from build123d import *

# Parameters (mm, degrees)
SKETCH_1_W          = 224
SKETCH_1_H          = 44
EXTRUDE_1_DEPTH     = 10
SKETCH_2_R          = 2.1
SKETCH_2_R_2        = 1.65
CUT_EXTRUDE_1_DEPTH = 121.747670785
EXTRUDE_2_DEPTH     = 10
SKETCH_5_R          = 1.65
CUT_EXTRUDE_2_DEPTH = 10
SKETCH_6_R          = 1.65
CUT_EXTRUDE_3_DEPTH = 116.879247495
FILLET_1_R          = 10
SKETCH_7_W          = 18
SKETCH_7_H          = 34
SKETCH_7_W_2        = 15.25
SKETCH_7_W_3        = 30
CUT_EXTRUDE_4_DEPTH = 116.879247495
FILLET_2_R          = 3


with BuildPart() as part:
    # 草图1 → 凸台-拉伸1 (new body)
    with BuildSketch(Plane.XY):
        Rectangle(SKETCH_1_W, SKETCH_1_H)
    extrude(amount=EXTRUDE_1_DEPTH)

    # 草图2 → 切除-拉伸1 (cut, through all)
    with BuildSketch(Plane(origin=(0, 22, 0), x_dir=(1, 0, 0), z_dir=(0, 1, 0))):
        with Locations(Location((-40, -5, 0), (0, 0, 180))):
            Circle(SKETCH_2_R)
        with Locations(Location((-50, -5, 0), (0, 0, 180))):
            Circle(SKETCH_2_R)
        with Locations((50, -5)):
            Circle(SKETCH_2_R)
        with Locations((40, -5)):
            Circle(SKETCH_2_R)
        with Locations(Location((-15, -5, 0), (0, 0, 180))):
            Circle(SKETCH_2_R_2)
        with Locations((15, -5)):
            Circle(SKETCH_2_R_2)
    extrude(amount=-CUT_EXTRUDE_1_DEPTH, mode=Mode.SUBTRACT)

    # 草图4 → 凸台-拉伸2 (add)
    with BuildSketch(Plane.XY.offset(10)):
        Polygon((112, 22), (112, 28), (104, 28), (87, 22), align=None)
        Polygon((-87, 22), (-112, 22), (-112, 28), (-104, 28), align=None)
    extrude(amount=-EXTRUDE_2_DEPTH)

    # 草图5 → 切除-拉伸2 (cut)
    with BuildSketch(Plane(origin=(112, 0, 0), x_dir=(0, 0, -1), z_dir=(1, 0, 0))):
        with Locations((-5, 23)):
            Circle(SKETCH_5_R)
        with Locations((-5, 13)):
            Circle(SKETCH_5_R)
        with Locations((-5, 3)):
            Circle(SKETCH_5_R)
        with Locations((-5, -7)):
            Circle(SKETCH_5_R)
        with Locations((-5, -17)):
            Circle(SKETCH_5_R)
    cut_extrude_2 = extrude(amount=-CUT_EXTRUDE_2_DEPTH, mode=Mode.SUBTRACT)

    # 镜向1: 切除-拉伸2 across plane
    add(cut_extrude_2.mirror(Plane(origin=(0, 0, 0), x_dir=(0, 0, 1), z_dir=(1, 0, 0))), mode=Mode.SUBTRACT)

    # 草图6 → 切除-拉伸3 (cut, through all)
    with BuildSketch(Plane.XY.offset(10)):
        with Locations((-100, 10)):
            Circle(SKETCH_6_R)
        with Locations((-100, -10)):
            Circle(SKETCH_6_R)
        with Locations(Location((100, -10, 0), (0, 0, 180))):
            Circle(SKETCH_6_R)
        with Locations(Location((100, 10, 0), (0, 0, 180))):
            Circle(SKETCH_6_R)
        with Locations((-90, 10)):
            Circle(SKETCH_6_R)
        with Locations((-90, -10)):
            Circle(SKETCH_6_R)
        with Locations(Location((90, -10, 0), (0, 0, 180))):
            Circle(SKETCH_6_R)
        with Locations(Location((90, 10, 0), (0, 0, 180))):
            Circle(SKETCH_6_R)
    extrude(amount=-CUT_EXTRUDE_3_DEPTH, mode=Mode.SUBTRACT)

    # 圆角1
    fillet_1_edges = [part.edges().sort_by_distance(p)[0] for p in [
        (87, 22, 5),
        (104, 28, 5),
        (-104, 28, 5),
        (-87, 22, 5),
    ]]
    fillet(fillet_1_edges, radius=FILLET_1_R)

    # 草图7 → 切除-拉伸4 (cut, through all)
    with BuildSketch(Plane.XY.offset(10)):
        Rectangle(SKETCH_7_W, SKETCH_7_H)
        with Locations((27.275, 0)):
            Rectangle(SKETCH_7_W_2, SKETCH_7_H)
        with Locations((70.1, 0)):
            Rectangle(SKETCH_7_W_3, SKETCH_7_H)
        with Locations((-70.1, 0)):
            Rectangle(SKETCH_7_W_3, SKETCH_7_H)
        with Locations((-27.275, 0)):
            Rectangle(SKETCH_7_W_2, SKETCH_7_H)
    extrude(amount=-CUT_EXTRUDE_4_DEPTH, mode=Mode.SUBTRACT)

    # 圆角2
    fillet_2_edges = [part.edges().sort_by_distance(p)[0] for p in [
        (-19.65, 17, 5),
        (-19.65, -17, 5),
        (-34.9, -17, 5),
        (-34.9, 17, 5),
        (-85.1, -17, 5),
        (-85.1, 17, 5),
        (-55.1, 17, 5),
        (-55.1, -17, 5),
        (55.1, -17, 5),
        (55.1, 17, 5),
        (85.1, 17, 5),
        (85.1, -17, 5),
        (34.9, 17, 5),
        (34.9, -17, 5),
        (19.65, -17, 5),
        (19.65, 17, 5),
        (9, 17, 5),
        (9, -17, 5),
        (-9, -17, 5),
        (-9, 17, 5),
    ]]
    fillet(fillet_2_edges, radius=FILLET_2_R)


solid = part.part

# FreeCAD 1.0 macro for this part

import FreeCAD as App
import Part
import Sketcher

V = App.Vector
Q = App.Units.Quantity


def edges_at(feature, points):
    """Names of the edges that pass closest to the given points."""
    edges = feature.Shape.Edges
    near = lambda p: min(range(len(edges)), key=lambda i: edges[i].distToShape(Part.Vertex(*p))[0])
    return sorted({f"Edge{near(p) + 1}" for p in points})

doc = App.newDocument("Part")
body = doc.addObject("PartDesign::Body", "Body")

# Sketch on XY plane
sketch1 = doc.addObject("Sketcher::SketchObject", "Sketch")
body.addObject(sketch1)
sketch1.AttachmentSupport = (doc.XY_Plane, [""])
sketch1.MapMode = "FlatFace"
sketch1.addGeometry([
    Part.LineSegment(V(-112, 22, 0), V(-112, -22, 0)),
    Part.LineSegment(V(-112, -22, 0), V(112, -22, 0)),
    Part.LineSegment(V(112, -22, 0), V(112, 22, 0)),
    Part.LineSegment(V(112, 22, 0), V(-112, 22, 0)),
], False)
sketch1.addConstraint([
    Sketcher.Constraint("Coincident", 0, 2, 1, 1),
    Sketcher.Constraint("Coincident", 1, 2, 2, 1),
    Sketcher.Constraint("Coincident", 2, 2, 3, 1),
    Sketcher.Constraint("Coincident", 3, 2, 0, 1),
    Sketcher.Constraint("Vertical", 0),
    Sketcher.Constraint("Horizontal", 1),
    Sketcher.Constraint("Vertical", 2),
    Sketcher.Constraint("Horizontal", 3),
    Sketcher.Constraint("Symmetric", 0, 2, 2, 2, -1, 1),
    Sketcher.Constraint("DistanceX", 1, 1, 1, 2, Q("224 mm")),
    Sketcher.Constraint("DistanceY", 0, 2, 0, 1, Q("44 mm")),
])
pad1 = doc.addObject("PartDesign::Pad", "Pad")
body.addObject(pad1)
pad1.Profile = sketch1
pad1.Length = 10

# Sketch on XZ plane
sketch2 = doc.addObject("Sketcher::SketchObject", "Sketch001")
body.addObject(sketch2)
sketch2.AttachmentSupport = (doc.XZ_Plane, [""])
sketch2.MapMode = "FlatFace"
sketch2.AttachmentOffset = App.Placement(V(0, 0, -22), App.Rotation())
sketch2.addGeometry([
    Part.Circle(V(-40, 5, 0), V(0, 0, 1), 2.1),  # 0
    Part.Circle(V(-50, 5, 0), V(0, 0, 1), 2.1),  # 1
    Part.Circle(V(50, 5, 0), V(0, 0, 1), 2.1),  # 2
    Part.Circle(V(40, 5, 0), V(0, 0, 1), 2.1),  # 3
    Part.Circle(V(-15, 5, 0), V(0, 0, 1), 1.6),  # 4
    Part.Circle(V(15, 5, 0), V(0, 0, 1), 1.6),  # 5
], False)
sketch2.addConstraint([
    Sketcher.Constraint("Equal", 0, 1),
    Sketcher.Constraint("Equal", 1, 2),
    Sketcher.Constraint("Equal", 2, 3),
    Sketcher.Constraint("Equal", 4, 5),
    Sketcher.Constraint("Symmetric", 1, 3, 2, 3, -2),
    Sketcher.Constraint("Symmetric", 0, 3, 3, 3, -2),
    Sketcher.Constraint("Symmetric", 4, 3, 5, 3, -2),
    Sketcher.Constraint("Horizontal", 0, 3, 1, 3),
    Sketcher.Constraint("Horizontal", 3, 3, 4, 3),
    Sketcher.Constraint("Diameter", 0, Q("4.2 mm")),
    Sketcher.Constraint("Diameter", 4, Q("3.3 mm")),
    Sketcher.Constraint("DistanceX", 0, 3, -1, 1, Q("40 mm")),
    Sketcher.Constraint("DistanceY", -1, 1, 0, 3, Q("5 mm")),
    Sketcher.Constraint("DistanceX", 1, 3, -1, 1, Q("50 mm")),
    Sketcher.Constraint("DistanceX", 4, 3, -1, 1, Q("15 mm")),
])
pocket1 = doc.addObject("PartDesign::Pocket", "Pocket")
body.addObject(pocket1)
pocket1.Profile = sketch2
pocket1.Type = "ThroughAll"
pocket1.Reversed = True

# Sketch on XY plane
sketch3 = doc.addObject("Sketcher::SketchObject", "Sketch002")
body.addObject(sketch3)
sketch3.AttachmentSupport = (doc.XY_Plane, [""])
sketch3.MapMode = "FlatFace"
sketch3.AttachmentOffset = App.Placement(V(0, 0, 10), App.Rotation())
sketch3.addGeometry([
    Part.LineSegment(V(112, 22, 0), V(112, 28, 0)),  # 0
    Part.LineSegment(V(112, 28, 0), V(104, 28, 0)),  # 1
    Part.LineSegment(V(104, 28, 0), V(87, 22, 0)),  # 2
    Part.LineSegment(V(87, 22, 0), V(112, 22, 0)),  # 3
    Part.LineSegment(V(-112, 22, 0), V(-87, 22, 0)),  # 4
    Part.LineSegment(V(-87, 22, 0), V(-104, 28, 0)),  # 5
    Part.LineSegment(V(-104, 28, 0), V(-112, 28, 0)),  # 6
    Part.LineSegment(V(-112, 28, 0), V(-112, 22, 0)),  # 7
], False)
sketch3.addConstraint([
    Sketcher.Constraint("Coincident", 0, 2, 1, 1),
    Sketcher.Constraint("Coincident", 1, 2, 2, 1),
    Sketcher.Constraint("Coincident", 2, 2, 3, 1),
    Sketcher.Constraint("Coincident", 3, 2, 0, 1),
    Sketcher.Constraint("Coincident", 4, 2, 5, 1),
    Sketcher.Constraint("Coincident", 5, 2, 6, 1),
    Sketcher.Constraint("Coincident", 6, 2, 7, 1),
    Sketcher.Constraint("Coincident", 7, 2, 4, 1),
    Sketcher.Constraint("Vertical", 0),
    Sketcher.Constraint("Horizontal", 1),
    Sketcher.Constraint("Horizontal", 3),
    Sketcher.Constraint("Horizontal", 4),
    Sketcher.Constraint("Horizontal", 6),
    Sketcher.Constraint("Vertical", 7),
    Sketcher.Constraint("Symmetric", 2, 2, 4, 2, -2),
    Sketcher.Constraint("Symmetric", 1, 2, 5, 2, -2),
    Sketcher.Constraint("Equal", 3, 4),
    Sketcher.Constraint("DistanceX", 1, 2, 1, 1, Q("8 mm")),
    Sketcher.Constraint("DistanceX", 3, 1, 3, 2, Q("25 mm")),
    Sketcher.Constraint("DistanceY", 0, 1, 0, 2, Q("6 mm")),
    Sketcher.Constraint("DistanceX", -1, 1, 0, 2, Q("112 mm")),
    Sketcher.Constraint("DistanceY", -1, 1, 0, 2, Q("28 mm")),
])
pad2 = doc.addObject("PartDesign::Pad", "Pad001")
body.addObject(pad2)
pad2.Profile = sketch3
pad2.Length = 10
pad2.Reversed = True

# Sketch on YZ plane
sketch4 = doc.addObject("Sketcher::SketchObject", "Sketch003")
body.addObject(sketch4)
sketch4.AttachmentSupport = (doc.YZ_Plane, [""])
sketch4.MapMode = "FlatFace"
sketch4.AttachmentOffset = App.Placement(V(0, 0, 112), App.Rotation())
sketch4.addGeometry([
    Part.Circle(V(23, 5, 0), V(0, 0, 1), 1.6),  # 0
    Part.Circle(V(13, 5, 0), V(0, 0, 1), 1.6),  # 1
    Part.Circle(V(3, 5, 0), V(0, 0, 1), 1.6),  # 2
    Part.Circle(V(-7, 5, 0), V(0, 0, 1), 1.6),  # 3
    Part.Circle(V(-17, 5, 0), V(0, 0, 1), 1.6),  # 4
], False)
sketch4.addConstraint([
    Sketcher.Constraint("Equal", 0, 1),
    Sketcher.Constraint("Equal", 1, 2),
    Sketcher.Constraint("Equal", 2, 3),
    Sketcher.Constraint("Equal", 3, 4),
    Sketcher.Constraint("Horizontal", 0, 3, 1, 3),
    Sketcher.Constraint("Horizontal", 1, 3, 2, 3),
    Sketcher.Constraint("Horizontal", 2, 3, 3, 3),
    Sketcher.Constraint("Horizontal", 3, 3, 4, 3),
    Sketcher.Constraint("Diameter", 0, Q("3.3 mm")),
    Sketcher.Constraint("DistanceX", -1, 1, 0, 3, Q("23 mm")),
    Sketcher.Constraint("DistanceY", -1, 1, 0, 3, Q("5 mm")),
    Sketcher.Constraint("DistanceX", -1, 1, 1, 3, Q("13 mm")),
    Sketcher.Constraint("DistanceX", -1, 1, 2, 3, Q("3 mm")),
    Sketcher.Constraint("DistanceX", 3, 3, -1, 1, Q("7 mm")),
    Sketcher.Constraint("DistanceX", 4, 3, -1, 1, Q("17 mm")),
])
pocket2 = doc.addObject("PartDesign::Pocket", "Pocket001")
body.addObject(pocket2)
pocket2.Profile = sketch4
pocket2.Length = 10
doc.recompute()

mirrored = doc.addObject("PartDesign::Mirrored", "Mirrored")
body.addObject(mirrored)
mirrored.Originals = [pocket2]
mirrored.MirrorPlane = (doc.YZ_Plane, [""])
body.Tip = mirrored

# Sketch on XY plane
sketch5 = doc.addObject("Sketcher::SketchObject", "Sketch004")
body.addObject(sketch5)
sketch5.AttachmentSupport = (doc.XY_Plane, [""])
sketch5.MapMode = "FlatFace"
sketch5.AttachmentOffset = App.Placement(V(0, 0, 10), App.Rotation())
sketch5.addGeometry([
    Part.Circle(V(-100, 10, 0), V(0, 0, 1), 1.6),  # 0
    Part.Circle(V(-100, -10, 0), V(0, 0, 1), 1.6),  # 1
    Part.Circle(V(100, -10, 0), V(0, 0, 1), 1.6),  # 2
    Part.Circle(V(100, 10, 0), V(0, 0, 1), 1.6),  # 3
    Part.Circle(V(-90, 10, 0), V(0, 0, 1), 1.6),  # 4
    Part.Circle(V(-90, -10, 0), V(0, 0, 1), 1.6),  # 5
    Part.Circle(V(90, -10, 0), V(0, 0, 1), 1.6),  # 6
    Part.Circle(V(90, 10, 0), V(0, 0, 1), 1.6),  # 7
], False)
sketch5.addConstraint([
    Sketcher.Constraint("Equal", 0, 1),
    Sketcher.Constraint("Equal", 1, 2),
    Sketcher.Constraint("Equal", 2, 3),
    Sketcher.Constraint("Equal", 3, 4),
    Sketcher.Constraint("Equal", 4, 5),
    Sketcher.Constraint("Equal", 5, 6),
    Sketcher.Constraint("Equal", 6, 7),
    Sketcher.Constraint("Symmetric", 0, 3, 2, 3, -1, 1),
    Sketcher.Constraint("Symmetric", 1, 3, 3, 3, -1, 1),
    Sketcher.Constraint("Symmetric", 4, 3, 6, 3, -1, 1),
    Sketcher.Constraint("Symmetric", 5, 3, 7, 3, -1, 1),
    Sketcher.Constraint("Symmetric", 1, 3, 2, 3, -2),
    Sketcher.Constraint("Symmetric", 5, 3, 6, 3, -2),
    Sketcher.Constraint("Horizontal", 3, 3, 4, 3),
    Sketcher.Constraint("Diameter", 0, Q("3.3 mm")),
    Sketcher.Constraint("DistanceX", 0, 3, -1, 1, Q("100 mm")),
    Sketcher.Constraint("DistanceY", -1, 1, 0, 3, Q("10 mm")),
    Sketcher.Constraint("DistanceX", 4, 3, -1, 1, Q("90 mm")),
])
pocket3 = doc.addObject("PartDesign::Pocket", "Pocket002")
body.addObject(pocket3)
pocket3.Profile = sketch5
pocket3.Type = "ThroughAll"
doc.recompute()

fillet = doc.addObject("PartDesign::Fillet", "Fillet")
body.addObject(fillet)
fillet.Base = (pocket3, edges_at(pocket3, [
    (87, 22, 5),
    (104, 28, 5),
    (-104, 28, 5),
    (-87, 22, 5),
]))
fillet.Radius = 10

# Sketch on XY plane
sketch6 = doc.addObject("Sketcher::SketchObject", "Sketch005")
body.addObject(sketch6)
sketch6.AttachmentSupport = (doc.XY_Plane, [""])
sketch6.MapMode = "FlatFace"
sketch6.AttachmentOffset = App.Placement(V(0, 0, 10), App.Rotation())
sketch6.addGeometry([
    Part.LineSegment(V(-9, 17, 0), V(-9, -17, 0)),  # 0
    Part.LineSegment(V(-9, -17, 0), V(9, -17, 0)),  # 1
    Part.LineSegment(V(9, -17, 0), V(9, 17, 0)),  # 2
    Part.LineSegment(V(9, 17, 0), V(-9, 17, 0)),  # 3
    Part.LineSegment(V(20, 17, 0), V(20, -17, 0)),  # 4
    Part.LineSegment(V(20, -17, 0), V(35, -17, 0)),  # 5
    Part.LineSegment(V(35, -17, 0), V(35, 17, 0)),  # 6
    Part.LineSegment(V(35, 17, 0), V(20, 17, 0)),  # 7
    Part.LineSegment(V(55, 17, 0), V(55, -17, 0)),  # 8
    Part.LineSegment(V(55, -17, 0), V(85, -17, 0)),  # 9
    Part.LineSegment(V(85, -17, 0), V(85, 17, 0)),  # 10
    Part.LineSegment(V(85, 17, 0), V(55, 17, 0)),  # 11
    Part.LineSegment(V(-85, 17, 0), V(-85, -17, 0)),  # 12
    Part.LineSegment(V(-85, -17, 0), V(-55, -17, 0)),  # 13
    Part.LineSegment(V(-55, -17, 0), V(-55, 17, 0)),  # 14
    Part.LineSegment(V(-55, 17, 0), V(-85, 17, 0)),  # 15
    Part.LineSegment(V(-35, 17, 0), V(-35, -17, 0)),  # 16
    Part.LineSegment(V(-35, -17, 0), V(-20, -17, 0)),  # 17
    Part.LineSegment(V(-20, -17, 0), V(-20, 17, 0)),  # 18
    Part.LineSegment(V(-20, 17, 0), V(-35, 17, 0)),  # 19
], False)
sketch6.addConstraint([
    Sketcher.Constraint("Coincident", 0, 2, 1, 1),
    Sketcher.Constraint("Coincident", 1, 2, 2, 1),
    Sketcher.Constraint("Coincident", 2, 2, 3, 1),
    Sketcher.Constraint("Coincident", 3, 2, 0, 1),
    Sketcher.Constraint("Coincident", 4, 2, 5, 1),
    Sketcher.Constraint("Coincident", 5, 2, 6, 1),
    Sketcher.Constraint("Coincident", 6, 2, 7, 1),
    Sketcher.Constraint("Coincident", 7, 2, 4, 1),
    Sketcher.Constraint("Coincident", 8, 2, 9, 1),
    Sketcher.Constraint("Coincident", 9, 2, 10, 1),
    Sketcher.Constraint("Coincident", 10, 2, 11, 1),
    Sketcher.Constraint("Coincident", 11, 2, 8, 1),
    Sketcher.Constraint("Coincident", 12, 2, 13, 1),
    Sketcher.Constraint("Coincident", 13, 2, 14, 1),
    Sketcher.Constraint("Coincident", 14, 2, 15, 1),
    Sketcher.Constraint("Coincident", 15, 2, 12, 1),
    Sketcher.Constraint("Coincident", 16, 2, 17, 1),
    Sketcher.Constraint("Coincident", 17, 2, 18, 1),
    Sketcher.Constraint("Coincident", 18, 2, 19, 1),
    Sketcher.Constraint("Coincident", 19, 2, 16, 1),
    Sketcher.Constraint("Vertical", 0),
    Sketcher.Constraint("Horizontal", 1),
    Sketcher.Constraint("Vertical", 2),
    Sketcher.Constraint("Horizontal", 3),
    Sketcher.Constraint("Vertical", 4),
    Sketcher.Constraint("Horizontal", 5),
    Sketcher.Constraint("Vertical", 6),
    Sketcher.Constraint("Horizontal", 7),
    Sketcher.Constraint("Vertical", 8),
    Sketcher.Constraint("Horizontal", 9),
    Sketcher.Constraint("Vertical", 10),
    Sketcher.Constraint("Horizontal", 11),
    Sketcher.Constraint("Vertical", 12),
    Sketcher.Constraint("Horizontal", 13),
    Sketcher.Constraint("Vertical", 14),
    Sketcher.Constraint("Horizontal", 15),
    Sketcher.Constraint("Vertical", 16),
    Sketcher.Constraint("Horizontal", 17),
    Sketcher.Constraint("Vertical", 18),
    Sketcher.Constraint("Horizontal", 19),
    Sketcher.Constraint("Symmetric", 0, 2, 2, 2, -1, 1),
    Sketcher.Constraint("Symmetric", 10, 2, 12, 2, -1, 1),
    Sketcher.Constraint("Symmetric", 8, 2, 14, 2, -1, 1),
    Sketcher.Constraint("Symmetric", 6, 2, 16, 2, -1, 1),
    Sketcher.Constraint("Symmetric", 4, 2, 18, 2, -1, 1),
    Sketcher.Constraint("Horizontal", 1, 2, 4, 2),
    Sketcher.Constraint("Horizontal", 3, 2, 6, 2),
    Sketcher.Constraint("Horizontal", 5, 2, 8, 2),
    Sketcher.Constraint("Horizontal", 7, 2, 10, 2),
    Sketcher.Constraint("DistanceX", 1, 1, 1, 2, Q("18 mm")),
    Sketcher.Constraint("DistanceX", 9, 1, 9, 2, Q("30 mm")),
    Sketcher.Constraint("DistanceY", 0, 2, 0, 1, Q("34 mm")),
    Sketcher.Constraint("DistanceX", 5, 1, 5, 2, Q("15.25 mm")),
    Sketcher.Constraint("DistanceX", -1, 1, 5, 2, Q("34.9 mm")),
    Sketcher.Constraint("DistanceX", -1, 1, 8, 2, Q("55.1 mm")),
])
pocket4 = doc.addObject("PartDesign::Pocket", "Pocket003")
body.addObject(pocket4)
pocket4.Profile = sketch6
pocket4.Type = "ThroughAll"
doc.recompute()

fillet2 = doc.addObject("PartDesign::Fillet", "Fillet001")
body.addObject(fillet2)
fillet2.Base = (pocket4, edges_at(pocket4, [
    (-19.65, 17, 5),
    (-19.65, -17, 5),
    (-34.9, -17, 5),
    (-34.9, 17, 5),
    (-85.1, -17, 5),
    (-85.1, 17, 5),
    (-55.1, 17, 5),
    (-55.1, -17, 5),
    (55.1, -17, 5),
    (55.1, 17, 5),
    (85.1, 17, 5),
    (85.1, -17, 5),
    (34.9, 17, 5),
    (34.9, -17, 5),
    (19.65, -17, 5),
    (19.65, 17, 5),
    (9, 17, 5),
    (9, -17, 5),
    (-9, -17, 5),
    (-9, 17, 5),
]))
fillet2.Radius = 3

doc.recompute()
